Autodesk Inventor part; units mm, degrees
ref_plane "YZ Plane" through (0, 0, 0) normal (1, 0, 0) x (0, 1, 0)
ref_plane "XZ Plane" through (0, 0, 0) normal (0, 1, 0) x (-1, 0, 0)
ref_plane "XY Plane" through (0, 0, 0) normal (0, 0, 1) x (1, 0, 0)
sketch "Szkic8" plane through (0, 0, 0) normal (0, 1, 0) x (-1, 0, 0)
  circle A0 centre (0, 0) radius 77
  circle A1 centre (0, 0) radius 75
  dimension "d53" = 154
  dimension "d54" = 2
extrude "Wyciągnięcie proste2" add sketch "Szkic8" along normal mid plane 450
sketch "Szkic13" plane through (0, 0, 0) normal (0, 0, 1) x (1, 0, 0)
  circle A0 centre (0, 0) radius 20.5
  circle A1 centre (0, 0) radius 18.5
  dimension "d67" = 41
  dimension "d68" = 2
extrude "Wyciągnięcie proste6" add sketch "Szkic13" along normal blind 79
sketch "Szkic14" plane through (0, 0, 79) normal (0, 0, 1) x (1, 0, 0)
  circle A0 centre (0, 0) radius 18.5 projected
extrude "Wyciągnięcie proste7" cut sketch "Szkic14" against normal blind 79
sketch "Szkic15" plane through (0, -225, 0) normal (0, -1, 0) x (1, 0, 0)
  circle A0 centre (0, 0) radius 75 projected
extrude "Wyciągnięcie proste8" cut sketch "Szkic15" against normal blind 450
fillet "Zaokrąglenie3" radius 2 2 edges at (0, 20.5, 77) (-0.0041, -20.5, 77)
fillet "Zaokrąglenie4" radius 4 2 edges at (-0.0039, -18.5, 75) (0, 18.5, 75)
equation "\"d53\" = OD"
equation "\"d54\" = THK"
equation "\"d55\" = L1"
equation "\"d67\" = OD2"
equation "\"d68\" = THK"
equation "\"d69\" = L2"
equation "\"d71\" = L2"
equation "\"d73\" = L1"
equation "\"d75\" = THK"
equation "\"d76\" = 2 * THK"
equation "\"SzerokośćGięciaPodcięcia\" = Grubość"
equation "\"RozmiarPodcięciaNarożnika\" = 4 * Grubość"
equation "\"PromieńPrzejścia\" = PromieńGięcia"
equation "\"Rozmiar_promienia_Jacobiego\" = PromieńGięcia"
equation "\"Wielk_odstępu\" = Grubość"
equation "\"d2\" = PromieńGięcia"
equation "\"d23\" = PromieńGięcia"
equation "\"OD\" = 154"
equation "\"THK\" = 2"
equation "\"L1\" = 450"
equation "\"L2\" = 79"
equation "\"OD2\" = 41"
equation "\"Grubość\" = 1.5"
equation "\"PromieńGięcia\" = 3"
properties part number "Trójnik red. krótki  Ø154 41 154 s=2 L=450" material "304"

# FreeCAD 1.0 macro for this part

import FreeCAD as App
import Part
import Sketcher
from FreeCAD import Vector
Q = App.Units.Quantity


def edges_at(feature, points):
    """Names of the edges that pass closest to the given points."""
    edges = feature.Shape.Edges
    near = lambda p: min(range(len(edges)), key=lambda i: edges[i].distToShape(Part.Vertex(*p))[0])
    return sorted({f"Edge{near(p) + 1}" for p in points})

doc = App.newDocument("Part")
body = doc.addObject("PartDesign::Body", "Body")

sketch1 = body.newObject("Sketcher::SketchObject", "Sketch")
sketch1.AttachmentSupport = (doc.getObject("XZ_Plane"), [""])
sketch1.MapMode = "FlatFace"
sketch1.addGeometry([
    Part.Circle(Vector(0, 0, 0), Vector(0, 0, 1), 77),
    Part.Circle(Vector(0, 0, 0), Vector(0, 0, 1), 75),
], False)
sketch1.addConstraint([
    Sketcher.Constraint("Coincident", 0, 3, -1, 1),
    Sketcher.Constraint("Coincident", 1, 3, -1, 1),
    Sketcher.Constraint("Diameter", 0, Q("154 mm")),
    Sketcher.Constraint("Diameter", 1, Q("150 mm")),
])
pad1 = body.newObject("PartDesign::Pad", "Pad")
pad1.Profile = sketch1
pad1.Length = 450
pad1.Midplane = True

sketch2 = body.newObject("Sketcher::SketchObject", "Sketch001")
sketch2.AttachmentSupport = (doc.getObject("XY_Plane"), [""])
sketch2.MapMode = "FlatFace"
sketch2.addGeometry([
    Part.Circle(Vector(0, 0, 0), Vector(0, 0, 1), 20),
    Part.Circle(Vector(0, 0, 0), Vector(0, 0, 1), 18),
], False)
sketch2.addConstraint([
    Sketcher.Constraint("Coincident", 0, 3, -1, 1),
    Sketcher.Constraint("Coincident", 1, 3, -1, 1),
    Sketcher.Constraint("Diameter", 0, Q("41 mm")),
    Sketcher.Constraint("Diameter", 1, Q("37 mm")),
])
pad2 = body.newObject("PartDesign::Pad", "Pad001")
pad2.Profile = sketch2
pad2.Length = 79

sketch3 = body.newObject("Sketcher::SketchObject", "Sketch002")
sketch3.AttachmentSupport = (doc.getObject("XY_Plane"), [""])
sketch3.MapMode = "FlatFace"
sketch3.AttachmentOffset = App.Placement(Vector(0, 0, 79), App.Rotation())
sketch3.addGeometry(Part.Circle(Vector(0, 0, 0), Vector(0, 0, 1), 18), False)
sketch3.addConstraint([
    Sketcher.Constraint("Coincident", 0, 3, -1, 1),
    Sketcher.Constraint("Diameter", 0, Q("37 mm")),
])
pocket1 = body.newObject("PartDesign::Pocket", "Pocket")
pocket1.Profile = sketch3
pocket1.Length = 79

sketch4 = body.newObject("Sketcher::SketchObject", "Sketch003")
sketch4.AttachmentSupport = (doc.getObject("XZ_Plane"), [""])
sketch4.MapMode = "FlatFace"
sketch4.AttachmentOffset = App.Placement(Vector(0, 0, 225), App.Rotation())
sketch4.addGeometry(Part.Circle(Vector(0, 0, 0), Vector(0, 0, 1), 75), False)
sketch4.addConstraint([
    Sketcher.Constraint("Coincident", 0, 3, -1, 1),
    Sketcher.Constraint("Diameter", 0, Q("150 mm")),
])
pocket2 = body.newObject("PartDesign::Pocket", "Pocket001")
pocket2.Profile = sketch4
pocket2.Length = 450
doc.recompute()

fillet = body.newObject("PartDesign::Fillet", "Fillet")
fillet.Base = (pocket2, edges_at(pocket2, [(0, 20.5, 77), (-0.004, -20.5, 77)]))
fillet.Radius = 2
doc.recompute()

fillet2 = body.newObject("PartDesign::Fillet", "Fillet001")
fillet2.Base = (fillet, edges_at(fillet, [(-0.004, -18.5, 75), (0, 18.5, 75)]))
fillet2.Radius = 4

doc.recompute()
